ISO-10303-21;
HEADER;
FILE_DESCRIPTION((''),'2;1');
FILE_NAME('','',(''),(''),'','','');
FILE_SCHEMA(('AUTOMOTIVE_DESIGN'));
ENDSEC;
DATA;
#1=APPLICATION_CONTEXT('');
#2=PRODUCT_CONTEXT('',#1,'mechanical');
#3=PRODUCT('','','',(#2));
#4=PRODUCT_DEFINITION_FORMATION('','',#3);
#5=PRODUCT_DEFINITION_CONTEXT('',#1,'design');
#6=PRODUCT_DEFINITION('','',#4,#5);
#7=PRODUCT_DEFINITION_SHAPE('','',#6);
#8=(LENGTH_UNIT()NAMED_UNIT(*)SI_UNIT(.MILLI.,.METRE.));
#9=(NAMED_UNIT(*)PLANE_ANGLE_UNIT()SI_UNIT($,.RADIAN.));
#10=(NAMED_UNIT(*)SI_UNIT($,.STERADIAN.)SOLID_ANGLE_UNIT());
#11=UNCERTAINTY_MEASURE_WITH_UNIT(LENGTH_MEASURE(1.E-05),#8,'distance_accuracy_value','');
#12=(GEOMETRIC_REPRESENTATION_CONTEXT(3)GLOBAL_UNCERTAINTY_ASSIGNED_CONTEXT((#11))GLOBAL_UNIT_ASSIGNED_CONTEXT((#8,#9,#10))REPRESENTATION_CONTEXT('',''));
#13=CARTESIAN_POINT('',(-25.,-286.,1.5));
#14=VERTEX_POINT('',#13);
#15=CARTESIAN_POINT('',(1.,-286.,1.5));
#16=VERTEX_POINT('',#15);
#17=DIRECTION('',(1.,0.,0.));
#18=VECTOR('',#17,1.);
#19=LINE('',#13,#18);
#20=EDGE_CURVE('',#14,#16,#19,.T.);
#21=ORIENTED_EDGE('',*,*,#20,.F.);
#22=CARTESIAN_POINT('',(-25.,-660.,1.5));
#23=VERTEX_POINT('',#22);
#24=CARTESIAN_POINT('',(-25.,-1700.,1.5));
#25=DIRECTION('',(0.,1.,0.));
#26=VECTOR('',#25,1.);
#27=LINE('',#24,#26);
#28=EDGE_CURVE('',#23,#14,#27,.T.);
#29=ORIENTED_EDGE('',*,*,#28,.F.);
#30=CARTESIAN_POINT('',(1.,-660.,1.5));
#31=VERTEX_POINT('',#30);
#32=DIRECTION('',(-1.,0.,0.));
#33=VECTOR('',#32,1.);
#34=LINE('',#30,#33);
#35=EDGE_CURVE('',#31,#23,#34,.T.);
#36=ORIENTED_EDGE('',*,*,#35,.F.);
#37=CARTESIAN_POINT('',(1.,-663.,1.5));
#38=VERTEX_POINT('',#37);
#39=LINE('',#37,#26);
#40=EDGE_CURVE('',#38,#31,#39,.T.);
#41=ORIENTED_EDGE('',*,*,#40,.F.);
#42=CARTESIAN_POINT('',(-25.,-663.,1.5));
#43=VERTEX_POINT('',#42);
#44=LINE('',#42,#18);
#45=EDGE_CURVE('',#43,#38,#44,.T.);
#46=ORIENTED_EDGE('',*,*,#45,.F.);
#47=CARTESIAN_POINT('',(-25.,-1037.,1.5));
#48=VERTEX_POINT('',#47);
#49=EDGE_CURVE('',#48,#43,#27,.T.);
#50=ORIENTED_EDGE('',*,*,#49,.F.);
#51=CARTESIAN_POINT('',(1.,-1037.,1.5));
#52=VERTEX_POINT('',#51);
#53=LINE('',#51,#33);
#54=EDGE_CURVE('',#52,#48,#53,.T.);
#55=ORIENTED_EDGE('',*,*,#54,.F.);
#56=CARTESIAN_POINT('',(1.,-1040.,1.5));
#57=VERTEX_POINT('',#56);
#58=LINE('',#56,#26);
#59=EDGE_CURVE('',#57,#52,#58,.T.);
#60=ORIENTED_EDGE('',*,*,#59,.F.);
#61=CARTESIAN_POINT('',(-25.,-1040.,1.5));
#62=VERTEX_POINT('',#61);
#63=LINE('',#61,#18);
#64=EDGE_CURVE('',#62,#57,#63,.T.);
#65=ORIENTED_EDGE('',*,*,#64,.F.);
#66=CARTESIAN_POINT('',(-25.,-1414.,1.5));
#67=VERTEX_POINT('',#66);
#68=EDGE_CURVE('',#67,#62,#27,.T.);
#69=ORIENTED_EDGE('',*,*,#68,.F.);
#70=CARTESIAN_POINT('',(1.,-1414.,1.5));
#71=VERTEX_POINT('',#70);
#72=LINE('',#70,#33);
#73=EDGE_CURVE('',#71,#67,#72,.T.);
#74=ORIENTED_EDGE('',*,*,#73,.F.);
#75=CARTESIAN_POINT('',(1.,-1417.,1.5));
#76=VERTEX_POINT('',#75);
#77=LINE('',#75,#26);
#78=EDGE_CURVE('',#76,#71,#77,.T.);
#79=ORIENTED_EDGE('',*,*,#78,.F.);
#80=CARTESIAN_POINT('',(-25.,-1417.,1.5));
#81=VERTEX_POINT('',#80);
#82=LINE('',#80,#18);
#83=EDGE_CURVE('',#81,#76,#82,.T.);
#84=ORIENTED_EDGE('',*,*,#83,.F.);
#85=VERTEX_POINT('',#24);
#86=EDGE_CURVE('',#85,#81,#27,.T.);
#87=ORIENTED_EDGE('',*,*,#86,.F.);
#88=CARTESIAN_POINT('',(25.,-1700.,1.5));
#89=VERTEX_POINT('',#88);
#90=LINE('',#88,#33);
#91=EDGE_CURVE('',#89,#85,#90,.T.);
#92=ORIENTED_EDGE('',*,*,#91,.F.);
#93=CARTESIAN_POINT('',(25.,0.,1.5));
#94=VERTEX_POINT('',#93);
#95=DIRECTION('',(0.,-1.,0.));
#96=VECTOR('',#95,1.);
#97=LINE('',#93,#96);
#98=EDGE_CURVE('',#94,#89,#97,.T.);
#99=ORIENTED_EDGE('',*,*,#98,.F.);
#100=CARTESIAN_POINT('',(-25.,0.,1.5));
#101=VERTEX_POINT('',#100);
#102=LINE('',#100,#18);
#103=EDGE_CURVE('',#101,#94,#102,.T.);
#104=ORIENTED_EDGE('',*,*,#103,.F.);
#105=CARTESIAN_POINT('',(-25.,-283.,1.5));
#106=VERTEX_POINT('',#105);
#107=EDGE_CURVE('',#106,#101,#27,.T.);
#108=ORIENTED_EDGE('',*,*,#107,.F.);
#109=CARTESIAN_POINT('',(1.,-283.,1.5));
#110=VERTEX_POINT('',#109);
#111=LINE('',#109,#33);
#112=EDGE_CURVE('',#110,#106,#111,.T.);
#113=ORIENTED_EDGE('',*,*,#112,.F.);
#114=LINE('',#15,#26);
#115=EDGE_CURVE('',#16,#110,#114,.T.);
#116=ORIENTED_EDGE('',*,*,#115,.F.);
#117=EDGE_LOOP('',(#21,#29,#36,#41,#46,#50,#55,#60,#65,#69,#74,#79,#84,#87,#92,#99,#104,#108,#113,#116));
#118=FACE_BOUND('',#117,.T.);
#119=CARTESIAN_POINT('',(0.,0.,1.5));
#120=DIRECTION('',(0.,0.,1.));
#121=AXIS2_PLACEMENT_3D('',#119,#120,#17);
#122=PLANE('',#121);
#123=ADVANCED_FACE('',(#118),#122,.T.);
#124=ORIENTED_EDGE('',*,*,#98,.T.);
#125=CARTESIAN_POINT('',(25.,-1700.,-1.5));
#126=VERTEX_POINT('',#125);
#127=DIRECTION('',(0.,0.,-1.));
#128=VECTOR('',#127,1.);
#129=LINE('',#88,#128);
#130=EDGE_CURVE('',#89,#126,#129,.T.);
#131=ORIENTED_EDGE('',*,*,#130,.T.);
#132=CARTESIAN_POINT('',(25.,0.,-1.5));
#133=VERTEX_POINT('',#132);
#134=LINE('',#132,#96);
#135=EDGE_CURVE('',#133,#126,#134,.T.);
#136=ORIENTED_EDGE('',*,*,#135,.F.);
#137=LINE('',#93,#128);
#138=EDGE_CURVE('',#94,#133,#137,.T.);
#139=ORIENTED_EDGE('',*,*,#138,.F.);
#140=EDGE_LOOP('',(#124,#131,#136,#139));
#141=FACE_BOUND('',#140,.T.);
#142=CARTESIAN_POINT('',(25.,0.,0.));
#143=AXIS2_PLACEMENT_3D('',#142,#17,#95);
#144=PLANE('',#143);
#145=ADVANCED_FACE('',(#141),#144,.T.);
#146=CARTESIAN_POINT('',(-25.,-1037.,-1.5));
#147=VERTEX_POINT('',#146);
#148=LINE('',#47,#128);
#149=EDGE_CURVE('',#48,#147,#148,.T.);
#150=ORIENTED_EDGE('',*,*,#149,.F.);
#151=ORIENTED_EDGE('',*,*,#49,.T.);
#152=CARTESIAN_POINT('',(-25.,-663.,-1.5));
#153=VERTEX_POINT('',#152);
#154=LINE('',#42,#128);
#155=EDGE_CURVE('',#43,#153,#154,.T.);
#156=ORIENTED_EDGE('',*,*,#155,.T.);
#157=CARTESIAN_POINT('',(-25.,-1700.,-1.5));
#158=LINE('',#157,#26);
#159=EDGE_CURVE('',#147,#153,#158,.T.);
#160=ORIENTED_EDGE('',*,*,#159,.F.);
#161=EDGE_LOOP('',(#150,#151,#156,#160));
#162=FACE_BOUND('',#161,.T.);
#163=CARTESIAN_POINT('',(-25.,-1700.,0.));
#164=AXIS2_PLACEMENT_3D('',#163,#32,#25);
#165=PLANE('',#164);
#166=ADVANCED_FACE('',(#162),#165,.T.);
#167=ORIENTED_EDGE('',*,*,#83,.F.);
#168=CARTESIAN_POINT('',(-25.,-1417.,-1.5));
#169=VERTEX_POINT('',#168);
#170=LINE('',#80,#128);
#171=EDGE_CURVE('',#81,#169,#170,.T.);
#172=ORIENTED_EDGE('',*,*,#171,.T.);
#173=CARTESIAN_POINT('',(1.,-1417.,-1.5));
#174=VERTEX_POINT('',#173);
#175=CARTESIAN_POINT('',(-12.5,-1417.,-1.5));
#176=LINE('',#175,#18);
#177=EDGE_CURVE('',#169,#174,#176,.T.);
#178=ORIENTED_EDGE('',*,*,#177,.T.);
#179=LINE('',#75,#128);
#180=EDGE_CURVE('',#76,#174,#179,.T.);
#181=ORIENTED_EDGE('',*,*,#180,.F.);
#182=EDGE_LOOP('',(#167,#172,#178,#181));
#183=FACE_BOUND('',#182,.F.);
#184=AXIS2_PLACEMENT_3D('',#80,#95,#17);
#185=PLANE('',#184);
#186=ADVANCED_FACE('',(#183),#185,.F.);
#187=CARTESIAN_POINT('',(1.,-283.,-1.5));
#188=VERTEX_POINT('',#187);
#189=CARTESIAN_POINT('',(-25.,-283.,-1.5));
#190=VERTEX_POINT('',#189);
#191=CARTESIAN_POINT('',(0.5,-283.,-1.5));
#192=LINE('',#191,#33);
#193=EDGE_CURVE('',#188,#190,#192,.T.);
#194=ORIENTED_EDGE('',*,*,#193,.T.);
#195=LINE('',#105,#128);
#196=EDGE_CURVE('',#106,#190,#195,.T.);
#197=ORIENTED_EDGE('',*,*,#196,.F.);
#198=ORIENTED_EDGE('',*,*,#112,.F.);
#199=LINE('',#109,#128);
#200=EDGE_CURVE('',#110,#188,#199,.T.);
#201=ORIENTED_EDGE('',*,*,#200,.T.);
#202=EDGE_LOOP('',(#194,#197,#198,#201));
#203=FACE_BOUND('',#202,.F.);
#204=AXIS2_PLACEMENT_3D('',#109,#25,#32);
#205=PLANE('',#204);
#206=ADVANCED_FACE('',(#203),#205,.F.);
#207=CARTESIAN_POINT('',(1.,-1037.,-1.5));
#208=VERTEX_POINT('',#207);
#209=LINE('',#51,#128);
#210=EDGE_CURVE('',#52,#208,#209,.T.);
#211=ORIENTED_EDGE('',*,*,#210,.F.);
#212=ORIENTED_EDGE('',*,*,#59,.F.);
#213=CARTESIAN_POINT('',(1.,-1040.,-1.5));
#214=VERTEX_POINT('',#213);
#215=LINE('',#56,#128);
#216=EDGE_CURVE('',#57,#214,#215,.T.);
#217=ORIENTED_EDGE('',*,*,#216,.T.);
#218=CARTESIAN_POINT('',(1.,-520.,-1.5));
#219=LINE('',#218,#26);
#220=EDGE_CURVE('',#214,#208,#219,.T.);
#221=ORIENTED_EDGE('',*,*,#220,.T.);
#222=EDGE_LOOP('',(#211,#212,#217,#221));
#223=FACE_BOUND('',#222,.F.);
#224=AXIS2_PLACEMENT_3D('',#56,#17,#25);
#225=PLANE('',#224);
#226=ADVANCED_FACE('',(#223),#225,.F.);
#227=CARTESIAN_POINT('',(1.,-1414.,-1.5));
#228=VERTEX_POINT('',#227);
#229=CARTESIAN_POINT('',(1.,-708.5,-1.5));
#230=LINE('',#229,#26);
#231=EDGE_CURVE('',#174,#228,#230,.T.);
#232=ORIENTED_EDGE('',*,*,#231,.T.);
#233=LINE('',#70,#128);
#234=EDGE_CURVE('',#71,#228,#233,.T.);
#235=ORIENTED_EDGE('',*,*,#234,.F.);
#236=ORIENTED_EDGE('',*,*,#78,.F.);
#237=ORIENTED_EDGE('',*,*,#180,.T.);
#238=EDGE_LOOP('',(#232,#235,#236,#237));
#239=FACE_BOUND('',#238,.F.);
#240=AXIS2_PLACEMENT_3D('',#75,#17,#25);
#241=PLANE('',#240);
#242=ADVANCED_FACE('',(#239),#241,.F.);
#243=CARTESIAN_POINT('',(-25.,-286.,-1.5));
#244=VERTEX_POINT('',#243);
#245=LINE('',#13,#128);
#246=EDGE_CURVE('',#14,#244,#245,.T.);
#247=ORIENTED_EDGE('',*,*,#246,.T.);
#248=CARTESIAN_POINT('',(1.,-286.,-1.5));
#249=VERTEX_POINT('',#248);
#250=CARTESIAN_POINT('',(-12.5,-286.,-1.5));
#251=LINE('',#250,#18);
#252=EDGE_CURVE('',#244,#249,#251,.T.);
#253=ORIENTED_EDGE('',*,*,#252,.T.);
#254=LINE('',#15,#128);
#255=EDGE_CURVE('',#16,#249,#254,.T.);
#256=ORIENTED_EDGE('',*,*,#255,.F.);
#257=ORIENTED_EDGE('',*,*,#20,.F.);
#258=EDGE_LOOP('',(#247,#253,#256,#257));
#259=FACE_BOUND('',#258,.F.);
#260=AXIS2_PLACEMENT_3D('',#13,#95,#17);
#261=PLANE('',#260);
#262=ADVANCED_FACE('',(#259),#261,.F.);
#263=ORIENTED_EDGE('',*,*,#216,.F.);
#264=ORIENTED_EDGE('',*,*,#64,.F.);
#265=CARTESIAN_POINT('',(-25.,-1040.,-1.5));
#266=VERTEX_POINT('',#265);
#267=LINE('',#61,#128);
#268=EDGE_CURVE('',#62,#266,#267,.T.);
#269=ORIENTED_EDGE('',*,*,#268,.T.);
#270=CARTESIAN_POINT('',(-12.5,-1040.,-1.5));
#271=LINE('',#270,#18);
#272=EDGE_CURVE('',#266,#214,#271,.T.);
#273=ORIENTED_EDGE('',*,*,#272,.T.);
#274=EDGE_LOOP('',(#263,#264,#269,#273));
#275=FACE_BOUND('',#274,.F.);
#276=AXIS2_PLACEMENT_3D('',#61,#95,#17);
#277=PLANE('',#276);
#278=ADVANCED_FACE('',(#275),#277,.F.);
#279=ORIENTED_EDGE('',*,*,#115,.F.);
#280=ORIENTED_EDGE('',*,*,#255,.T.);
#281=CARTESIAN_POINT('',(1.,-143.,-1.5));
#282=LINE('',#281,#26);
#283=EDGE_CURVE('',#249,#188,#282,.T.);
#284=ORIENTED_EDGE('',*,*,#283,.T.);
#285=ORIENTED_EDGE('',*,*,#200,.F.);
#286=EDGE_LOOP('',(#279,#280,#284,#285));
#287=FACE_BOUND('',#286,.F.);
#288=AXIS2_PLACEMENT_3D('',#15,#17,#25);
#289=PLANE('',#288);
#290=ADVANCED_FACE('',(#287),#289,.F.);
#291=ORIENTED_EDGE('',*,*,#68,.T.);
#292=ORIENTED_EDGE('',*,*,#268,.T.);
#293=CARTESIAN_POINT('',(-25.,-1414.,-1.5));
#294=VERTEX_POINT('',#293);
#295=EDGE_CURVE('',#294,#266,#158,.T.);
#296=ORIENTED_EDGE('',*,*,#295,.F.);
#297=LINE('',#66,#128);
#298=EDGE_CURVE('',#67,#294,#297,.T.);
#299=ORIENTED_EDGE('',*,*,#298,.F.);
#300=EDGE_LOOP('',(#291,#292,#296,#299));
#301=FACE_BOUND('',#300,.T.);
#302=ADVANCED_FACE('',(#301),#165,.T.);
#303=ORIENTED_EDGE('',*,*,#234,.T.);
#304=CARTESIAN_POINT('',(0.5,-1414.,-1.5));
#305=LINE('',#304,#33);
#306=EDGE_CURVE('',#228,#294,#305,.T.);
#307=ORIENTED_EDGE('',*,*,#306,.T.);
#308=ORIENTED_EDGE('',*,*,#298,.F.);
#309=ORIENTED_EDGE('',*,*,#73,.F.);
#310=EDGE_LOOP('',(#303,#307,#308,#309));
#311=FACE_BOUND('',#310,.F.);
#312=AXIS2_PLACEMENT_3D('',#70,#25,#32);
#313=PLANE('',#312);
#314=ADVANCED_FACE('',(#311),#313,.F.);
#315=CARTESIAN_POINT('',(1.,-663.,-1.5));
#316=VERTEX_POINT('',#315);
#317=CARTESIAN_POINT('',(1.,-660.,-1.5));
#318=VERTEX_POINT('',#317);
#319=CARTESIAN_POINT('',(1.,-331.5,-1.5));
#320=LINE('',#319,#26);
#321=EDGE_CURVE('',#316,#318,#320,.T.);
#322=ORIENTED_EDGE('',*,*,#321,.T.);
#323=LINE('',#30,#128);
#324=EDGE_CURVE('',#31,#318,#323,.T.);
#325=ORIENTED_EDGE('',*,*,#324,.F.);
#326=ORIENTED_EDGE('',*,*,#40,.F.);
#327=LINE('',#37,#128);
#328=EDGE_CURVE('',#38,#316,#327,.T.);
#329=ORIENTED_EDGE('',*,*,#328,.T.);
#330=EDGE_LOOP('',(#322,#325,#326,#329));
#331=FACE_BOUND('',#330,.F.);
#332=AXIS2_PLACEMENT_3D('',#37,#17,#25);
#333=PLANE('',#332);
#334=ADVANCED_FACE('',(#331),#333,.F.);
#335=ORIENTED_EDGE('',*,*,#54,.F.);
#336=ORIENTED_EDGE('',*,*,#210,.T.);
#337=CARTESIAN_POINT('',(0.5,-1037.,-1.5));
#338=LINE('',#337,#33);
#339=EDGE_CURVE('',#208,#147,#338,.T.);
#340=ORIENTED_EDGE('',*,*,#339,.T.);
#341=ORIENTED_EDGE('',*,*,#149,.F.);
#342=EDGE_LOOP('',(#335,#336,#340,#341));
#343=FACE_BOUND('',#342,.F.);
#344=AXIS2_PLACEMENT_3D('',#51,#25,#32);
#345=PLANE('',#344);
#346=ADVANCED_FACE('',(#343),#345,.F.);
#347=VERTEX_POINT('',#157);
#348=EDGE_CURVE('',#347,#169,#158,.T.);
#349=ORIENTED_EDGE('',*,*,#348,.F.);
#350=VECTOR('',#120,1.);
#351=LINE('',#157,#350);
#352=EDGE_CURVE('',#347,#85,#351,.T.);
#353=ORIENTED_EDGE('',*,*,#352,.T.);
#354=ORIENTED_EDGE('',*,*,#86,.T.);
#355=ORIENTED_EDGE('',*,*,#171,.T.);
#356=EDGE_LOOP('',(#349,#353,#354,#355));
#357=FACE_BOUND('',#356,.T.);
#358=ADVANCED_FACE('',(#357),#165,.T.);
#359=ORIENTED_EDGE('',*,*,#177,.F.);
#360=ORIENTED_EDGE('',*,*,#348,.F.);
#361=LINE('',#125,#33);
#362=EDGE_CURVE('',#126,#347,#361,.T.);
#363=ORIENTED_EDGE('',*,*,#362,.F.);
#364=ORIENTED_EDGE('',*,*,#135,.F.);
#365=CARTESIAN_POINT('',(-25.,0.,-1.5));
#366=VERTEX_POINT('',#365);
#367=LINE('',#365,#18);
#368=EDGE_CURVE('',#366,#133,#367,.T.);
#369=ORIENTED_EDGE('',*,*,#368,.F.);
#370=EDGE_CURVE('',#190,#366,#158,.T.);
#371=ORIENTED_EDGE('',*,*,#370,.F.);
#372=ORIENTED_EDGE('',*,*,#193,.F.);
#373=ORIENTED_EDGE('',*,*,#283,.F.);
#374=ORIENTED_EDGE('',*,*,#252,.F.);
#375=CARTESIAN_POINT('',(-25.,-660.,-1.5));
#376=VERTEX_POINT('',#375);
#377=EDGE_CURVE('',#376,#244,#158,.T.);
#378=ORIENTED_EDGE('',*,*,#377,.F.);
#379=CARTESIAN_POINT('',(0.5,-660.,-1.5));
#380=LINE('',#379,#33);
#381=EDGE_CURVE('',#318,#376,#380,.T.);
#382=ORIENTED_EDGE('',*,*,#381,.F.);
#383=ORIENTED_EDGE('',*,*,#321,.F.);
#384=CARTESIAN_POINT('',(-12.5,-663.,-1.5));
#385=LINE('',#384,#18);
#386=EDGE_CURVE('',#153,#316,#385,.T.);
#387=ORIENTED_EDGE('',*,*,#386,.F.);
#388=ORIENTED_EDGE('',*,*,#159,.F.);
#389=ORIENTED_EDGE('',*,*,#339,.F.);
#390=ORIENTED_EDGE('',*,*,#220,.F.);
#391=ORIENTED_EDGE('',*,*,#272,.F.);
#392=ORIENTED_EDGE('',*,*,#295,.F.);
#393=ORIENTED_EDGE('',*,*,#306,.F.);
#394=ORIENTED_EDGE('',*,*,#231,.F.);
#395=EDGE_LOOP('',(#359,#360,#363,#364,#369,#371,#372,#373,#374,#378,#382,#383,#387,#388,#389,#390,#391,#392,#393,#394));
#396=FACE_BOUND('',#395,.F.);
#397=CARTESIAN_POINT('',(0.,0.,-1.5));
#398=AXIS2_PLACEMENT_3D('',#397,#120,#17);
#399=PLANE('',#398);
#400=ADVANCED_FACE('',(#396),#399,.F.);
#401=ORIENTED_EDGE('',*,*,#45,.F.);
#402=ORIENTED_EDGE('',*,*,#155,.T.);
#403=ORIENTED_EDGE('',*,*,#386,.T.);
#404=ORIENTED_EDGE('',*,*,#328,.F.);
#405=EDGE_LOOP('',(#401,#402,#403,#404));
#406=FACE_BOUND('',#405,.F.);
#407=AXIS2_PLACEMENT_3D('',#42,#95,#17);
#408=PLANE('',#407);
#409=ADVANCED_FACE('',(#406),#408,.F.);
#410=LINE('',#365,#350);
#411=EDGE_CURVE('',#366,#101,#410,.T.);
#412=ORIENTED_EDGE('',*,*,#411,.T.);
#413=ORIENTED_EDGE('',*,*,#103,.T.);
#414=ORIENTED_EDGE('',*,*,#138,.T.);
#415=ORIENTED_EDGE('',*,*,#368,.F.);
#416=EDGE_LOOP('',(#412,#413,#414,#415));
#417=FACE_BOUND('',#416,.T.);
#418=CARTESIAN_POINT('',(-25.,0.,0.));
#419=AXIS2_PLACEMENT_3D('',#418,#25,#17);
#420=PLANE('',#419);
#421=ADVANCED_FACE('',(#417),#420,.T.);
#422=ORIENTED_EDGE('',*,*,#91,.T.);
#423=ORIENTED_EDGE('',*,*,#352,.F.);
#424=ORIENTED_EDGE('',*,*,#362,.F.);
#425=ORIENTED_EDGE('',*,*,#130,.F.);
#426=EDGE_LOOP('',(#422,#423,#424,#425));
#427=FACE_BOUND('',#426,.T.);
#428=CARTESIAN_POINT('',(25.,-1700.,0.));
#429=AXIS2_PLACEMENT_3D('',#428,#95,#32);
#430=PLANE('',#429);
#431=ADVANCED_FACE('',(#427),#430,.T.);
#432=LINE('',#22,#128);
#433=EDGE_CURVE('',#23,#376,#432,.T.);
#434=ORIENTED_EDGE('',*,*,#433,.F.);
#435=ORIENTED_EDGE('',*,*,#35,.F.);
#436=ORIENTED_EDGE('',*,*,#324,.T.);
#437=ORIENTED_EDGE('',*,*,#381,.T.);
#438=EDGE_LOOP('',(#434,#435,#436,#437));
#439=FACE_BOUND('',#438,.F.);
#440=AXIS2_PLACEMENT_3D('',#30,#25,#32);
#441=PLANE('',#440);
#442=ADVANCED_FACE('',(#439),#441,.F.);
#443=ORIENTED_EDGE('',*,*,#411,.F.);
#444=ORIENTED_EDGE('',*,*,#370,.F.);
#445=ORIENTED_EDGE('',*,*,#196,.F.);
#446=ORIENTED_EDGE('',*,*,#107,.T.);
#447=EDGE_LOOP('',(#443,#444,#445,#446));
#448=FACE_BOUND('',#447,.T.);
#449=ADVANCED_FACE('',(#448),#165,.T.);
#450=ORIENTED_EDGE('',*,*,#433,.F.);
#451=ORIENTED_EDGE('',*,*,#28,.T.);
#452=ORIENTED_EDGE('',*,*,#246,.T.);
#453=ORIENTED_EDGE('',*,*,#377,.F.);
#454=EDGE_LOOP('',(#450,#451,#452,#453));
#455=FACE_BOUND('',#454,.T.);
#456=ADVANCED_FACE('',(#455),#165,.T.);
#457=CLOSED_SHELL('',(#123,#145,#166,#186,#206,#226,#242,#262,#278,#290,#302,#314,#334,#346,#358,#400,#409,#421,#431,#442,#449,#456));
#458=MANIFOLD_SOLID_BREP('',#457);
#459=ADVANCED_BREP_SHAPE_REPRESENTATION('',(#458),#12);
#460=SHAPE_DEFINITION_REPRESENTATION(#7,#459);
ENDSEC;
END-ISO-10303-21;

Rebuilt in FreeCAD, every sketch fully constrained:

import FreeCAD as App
import Part
import Sketcher

V = App.Vector

doc = App.newDocument("Part")
body = doc.addObject("PartDesign::Body", "Body")

# Sketch on XY plane
sketch1 = doc.addObject("Sketcher::SketchObject", "Sketch")
body.addObject(sketch1)
sketch1.AttachmentSupport = (doc.XY_Plane, [""])
sketch1.MapMode = "FlatFace"
sketch1.addGeometry([
    Part.LineSegment(V(25, 0, 0), V(-25, 0, 0)),
    Part.LineSegment(V(-25, 0, 0), V(-25, -1700, 0)),
    Part.LineSegment(V(-25, -1700, 0), V(25, -1700, 0)),
    Part.LineSegment(V(25, -1700, 0), V(25, 0, 0)),
], False)
sketch1.addConstraint([
    Sketcher.Constraint("Coincident", 0, 2, 1, 1),
    Sketcher.Constraint("Coincident", 1, 2, 2, 1),
    Sketcher.Constraint("Coincident", 2, 2, 3, 1),
    Sketcher.Constraint("Coincident", 3, 2, 0, 1),
    Sketcher.Constraint("Horizontal", 0),
    Sketcher.Constraint("Vertical", 1),
    Sketcher.Constraint("Horizontal", 2),
    Sketcher.Constraint("Vertical", 3),
    Sketcher.Constraint("Symmetric", 0, 2, 3, 2, -1, 1),
    Sketcher.Constraint("DistanceX", 0, 2, 0, 1, 50.0),
    Sketcher.Constraint("DistanceY", 1, 2, 1, 1, 1700.0),
])
pad1 = doc.addObject("PartDesign::Pad", "Pad")
body.addObject(pad1)
pad1.Profile = sketch1
pad1.Length = 3
pad1.Midplane = True

# Sketch on XY plane
sketch2 = doc.addObject("Sketcher::SketchObject", "Sketch001")
body.addObject(sketch2)
sketch2.AttachmentSupport = (doc.XY_Plane, [""])
sketch2.MapMode = "FlatFace"
sketch2.AttachmentOffset = App.Placement(V(0, 0, 1.5), App.Rotation())
sketch2.addGeometry([
    Part.LineSegment(V(-25, -1037, 0), V(-25, -1040, 0)),  # 0
    Part.LineSegment(V(-25, -1040, 0), V(1, -1040, 0)),  # 1
    Part.LineSegment(V(1, -1040, 0), V(1, -1037, 0)),  # 2
    Part.LineSegment(V(1, -1037, 0), V(-25, -1037, 0)),  # 3
    Part.LineSegment(V(-25, -283, 0), V(-25, -286, 0)),  # 4
    Part.LineSegment(V(-25, -286, 0), V(1, -286, 0)),  # 5
    Part.LineSegment(V(1, -286, 0), V(1, -283, 0)),  # 6
    Part.LineSegment(V(1, -283, 0), V(-25, -283, 0)),  # 7
    Part.LineSegment(V(-25, -660, 0), V(-25, -663, 0)),  # 8
    Part.LineSegment(V(-25, -663, 0), V(1, -663, 0)),  # 9
    Part.LineSegment(V(1, -663, 0), V(1, -660, 0)),  # 10
    Part.LineSegment(V(1, -660, 0), V(-25, -660, 0)),  # 11
    Part.LineSegment(V(1, -1414, 0), V(-25, -1414, 0)),  # 12
    Part.LineSegment(V(-25, -1414, 0), V(-25, -1417, 0)),  # 13
    Part.LineSegment(V(-25, -1417, 0), V(1, -1417, 0)),  # 14
    Part.LineSegment(V(1, -1417, 0), V(1, -1414, 0)),  # 15
], False)
sketch2.addConstraint([
    Sketcher.Constraint("Coincident", 0, 2, 1, 1),
    Sketcher.Constraint("Coincident", 1, 2, 2, 1),
    Sketcher.Constraint("Coincident", 2, 2, 3, 1),
    Sketcher.Constraint("Coincident", 3, 2, 0, 1),
    Sketcher.Constraint("Coincident", 4, 2, 5, 1),
    Sketcher.Constraint("Coincident", 5, 2, 6, 1),
    Sketcher.Constraint("Coincident", 6, 2, 7, 1),
    Sketcher.Constraint("Coincident", 7, 2, 4, 1),
    Sketcher.Constraint("Coincident", 8, 2, 9, 1),
    Sketcher.Constraint("Coincident", 9, 2, 10, 1),
    Sketcher.Constraint("Coincident", 10, 2, 11, 1),
    Sketcher.Constraint("Coincident", 11, 2, 8, 1),
    Sketcher.Constraint("Coincident", 12, 2, 13, 1),
    Sketcher.Constraint("Coincident", 13, 2, 14, 1),
    Sketcher.Constraint("Coincident", 14, 2, 15, 1),
    Sketcher.Constraint("Coincident", 15, 2, 12, 1),
    Sketcher.Constraint("Vertical", 0),
    Sketcher.Constraint("Horizontal", 1),
    Sketcher.Constraint("Vertical", 2),
    Sketcher.Constraint("Horizontal", 3),
    Sketcher.Constraint("Vertical", 4),
    Sketcher.Constraint("Horizontal", 5),
    Sketcher.Constraint("Vertical", 6),
    Sketcher.Constraint("Horizontal", 7),
    Sketcher.Constraint("Vertical", 8),
    Sketcher.Constraint("Horizontal", 9),
    Sketcher.Constraint("Vertical", 10),
    Sketcher.Constraint("Horizontal", 11),
    Sketcher.Constraint("Horizontal", 12),
    Sketcher.Constraint("Vertical", 13),
    Sketcher.Constraint("Horizontal", 14),
    Sketcher.Constraint("Vertical", 15),
    Sketcher.Constraint("Vertical", 3, 2, 4, 2),
    Sketcher.Constraint("Vertical", 2, 2, 5, 2),
    Sketcher.Constraint("Vertical", 7, 2, 8, 2),
    Sketcher.Constraint("Vertical", 6, 2, 9, 2),
    Sketcher.Constraint("Vertical", 11, 2, 12, 2),
    Sketcher.Constraint("Vertical", 10, 2, 14, 2),
    Sketcher.Constraint("Equal", 2, 4),
    Sketcher.Constraint("Equal", 6, 8),
    Sketcher.Constraint("Equal", 10, 13),
    Sketcher.Constraint("DistanceX", 1, 1, 1, 2, 26.0),
    Sketcher.Constraint("DistanceY", 0, 2, 0, 1, 3.0),
    Sketcher.Constraint("DistanceY", 0, 2, 8, 2, 377.0),
    Sketcher.Constraint("DistanceY", 8, 2, 4, 2, 377.0),
    Sketcher.Constraint("DistanceY", 12, 2, 3, 2, 377.0),
    Sketcher.Constraint("DistanceX", 0, 2, -1, 1, 25.0),
    Sketcher.Constraint("DistanceY", 0, 2, -1, 1, 1040.0),
])
pocket1 = doc.addObject("PartDesign::Pocket", "Pocket")
body.addObject(pocket1)
pocket1.Profile = sketch2
pocket1.Type = "ThroughAll"

doc.recompute()
